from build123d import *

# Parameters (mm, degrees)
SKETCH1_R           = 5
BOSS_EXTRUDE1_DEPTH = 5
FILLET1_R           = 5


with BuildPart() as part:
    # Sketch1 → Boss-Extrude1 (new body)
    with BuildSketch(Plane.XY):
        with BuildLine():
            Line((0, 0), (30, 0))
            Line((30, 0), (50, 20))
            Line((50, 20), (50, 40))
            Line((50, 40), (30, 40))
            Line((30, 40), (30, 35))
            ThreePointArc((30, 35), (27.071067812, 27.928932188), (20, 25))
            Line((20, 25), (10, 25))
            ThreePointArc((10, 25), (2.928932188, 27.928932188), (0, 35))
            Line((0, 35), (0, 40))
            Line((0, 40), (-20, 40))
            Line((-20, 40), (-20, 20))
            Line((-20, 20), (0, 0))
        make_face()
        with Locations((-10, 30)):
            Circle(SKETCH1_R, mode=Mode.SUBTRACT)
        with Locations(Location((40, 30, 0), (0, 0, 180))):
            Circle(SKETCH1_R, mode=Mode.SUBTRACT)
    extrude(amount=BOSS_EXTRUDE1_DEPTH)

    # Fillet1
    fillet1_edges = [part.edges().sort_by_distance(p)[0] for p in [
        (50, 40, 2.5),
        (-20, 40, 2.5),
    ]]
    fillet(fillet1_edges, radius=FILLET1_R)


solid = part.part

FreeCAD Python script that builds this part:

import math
import FreeCAD as App
import Part
import Sketcher


def edges_at(feature, points):
    """Names of the edges that pass closest to the given points."""
    edges = feature.Shape.Edges
    near = lambda p: min(range(len(edges)), key=lambda i: edges[i].distToShape(Part.Vertex(*p))[0])
    return sorted({f"Edge{near(p) + 1}" for p in points})

doc = App.newDocument("Part")
body = doc.addObject("PartDesign::Body", "Body")

# Sketch on XY plane
sketch1 = body.newObject("Sketcher::SketchObject", "Sketch")
sketch1.AttachmentSupport = (doc.getObject("XY_Plane"), [""])
sketch1.MapMode = "FlatFace"
sketch1.addGeometry(Part.LineSegment(App.Vector(0, 0, 0), App.Vector(30, 0, 0)), False)
sketch1.addGeometry(Part.LineSegment(App.Vector(30, 0, 0), App.Vector(50, 20, 0)), False)
sketch1.addGeometry(Part.LineSegment(App.Vector(50, 20, 0), App.Vector(50, 40, 0)), False)
sketch1.addGeometry(Part.LineSegment(App.Vector(50, 40, 0), App.Vector(30, 40, 0)), False)
sketch1.addGeometry(Part.LineSegment(App.Vector(30, 40, 0), App.Vector(30, 35, 0)), False)
sketch1.addGeometry(Part.ArcOfCircle(Part.Circle(App.Vector(20, 35, 0), App.Vector(0, 0, 1), 10), math.radians(-90), math.radians(0)), False)
sketch1.addGeometry(Part.LineSegment(App.Vector(20, 25, 0), App.Vector(10, 25, 0)), False)
sketch1.addGeometry(Part.ArcOfCircle(Part.Circle(App.Vector(10, 35, 0), App.Vector(0, 0, 1), 10), math.radians(180), math.radians(270)), False)
sketch1.addGeometry(Part.LineSegment(App.Vector(0, 35, 0), App.Vector(0, 40, 0)), False)
sketch1.addGeometry(Part.LineSegment(App.Vector(0, 40, 0), App.Vector(-20, 40, 0)), False)
sketch1.addGeometry(Part.LineSegment(App.Vector(-20, 40, 0), App.Vector(-20, 20, 0)), False)
sketch1.addGeometry(Part.LineSegment(App.Vector(-20, 20, 0), App.Vector(0, 0, 0)), False)
sketch1.addGeometry(Part.Circle(App.Vector(-10, 30, 0), App.Vector(0, 0, 1), 5), False)
sketch1.addGeometry(Part.Circle(App.Vector(40, 30, 0), App.Vector(0, 0, 1), 5), False)
sketch1.addConstraint(Sketcher.Constraint("Coincident", 0, 2, 1, 1))
sketch1.addConstraint(Sketcher.Constraint("Coincident", 1, 2, 2, 1))
sketch1.addConstraint(Sketcher.Constraint("Coincident", 2, 2, 3, 1))
sketch1.addConstraint(Sketcher.Constraint("Coincident", 3, 2, 4, 1))
sketch1.addConstraint(Sketcher.Constraint("Tangent", 4, 2, 5, 2))
sketch1.addConstraint(Sketcher.Constraint("Tangent", 5, 1, 6, 1))
sketch1.addConstraint(Sketcher.Constraint("Tangent", 6, 2, 7, 2))
sketch1.addConstraint(Sketcher.Constraint("Tangent", 7, 1, 8, 1))
sketch1.addConstraint(Sketcher.Constraint("Coincident", 8, 2, 9, 1))
sketch1.addConstraint(Sketcher.Constraint("Coincident", 9, 2, 10, 1))
sketch1.addConstraint(Sketcher.Constraint("Coincident", 10, 2, 11, 1))
sketch1.addConstraint(Sketcher.Constraint("Coincident", 11, 2, 0, 1))
sketch1.addConstraint(Sketcher.Constraint("Horizontal", 0))
sketch1.addConstraint(Sketcher.Constraint("Vertical", 2))
sketch1.addConstraint(Sketcher.Constraint("Horizontal", 3))
sketch1.addConstraint(Sketcher.Constraint("Vertical", 4))
sketch1.addConstraint(Sketcher.Constraint("Horizontal", 6))
sketch1.addConstraint(Sketcher.Constraint("Vertical", 8))
sketch1.addConstraint(Sketcher.Constraint("Horizontal", 9))
sketch1.addConstraint(Sketcher.Constraint("Vertical", 10))
sketch1.addConstraint(Sketcher.Constraint("Coincident", 11, 2, -1, 1))
sketch1.addConstraint(Sketcher.Constraint("Equal", 5, 7))
sketch1.addConstraint(Sketcher.Constraint("Equal", 12, 13))
sketch1.addConstraint(Sketcher.Constraint("PointOnObject", 7, 1, -2))
sketch1.addConstraint(Sketcher.Constraint("Perpendicular", 1, 11))
sketch1.addConstraint(Sketcher.Constraint("Horizontal", 12, 3, 13, 3))
sketch1.addConstraint(Sketcher.Constraint("Horizontal", 3, 2, 8, 2))
sketch1.addConstraint(Sketcher.Constraint("Horizontal", 1, 2, 10, 2))
sketch1.addConstraint(Sketcher.Constraint("Vertical", 0, 2, 3, 2))
sketch1.addConstraint(Sketcher.Constraint("Equal", 3, 9))
sketch1.addConstraint(Sketcher.Constraint("Equal", 9, 2))
sketch1.addConstraint(Sketcher.Constraint("Diameter", 12, 10.0))
sketch1.addConstraint(Sketcher.Constraint("Radius", 5, 10.0))
sketch1.addConstraint(Sketcher.Constraint("DistanceX", 0, 1, 0, 2, 30.0))
sketch1.addConstraint(Sketcher.Constraint("DistanceX", 3, 2, 3, 1, 20.0))
sketch1.addConstraint(Sketcher.Constraint("DistanceY", 4, 2, 4, 1, 5.0))
sketch1.addConstraint(Sketcher.Constraint("DistanceX", 12, 3, -1, 1, 10.0))
sketch1.addConstraint(Sketcher.Constraint("DistanceY", -1, 1, 12, 3, 30.0))
sketch1.addConstraint(Sketcher.Constraint("DistanceX", -1, 1, 13, 3, 40.0))
pad1 = body.newObject("PartDesign::Pad", "Pad")
pad1.Profile = sketch1
pad1.Length = 5
doc.recompute()

fillet = body.newObject("PartDesign::Fillet", "Fillet")
fillet.Base = (pad1, edges_at(pad1, [(50, 40, 2.5), (-20, 40, 2.5)]))
fillet.Radius = 5

doc.recompute()
